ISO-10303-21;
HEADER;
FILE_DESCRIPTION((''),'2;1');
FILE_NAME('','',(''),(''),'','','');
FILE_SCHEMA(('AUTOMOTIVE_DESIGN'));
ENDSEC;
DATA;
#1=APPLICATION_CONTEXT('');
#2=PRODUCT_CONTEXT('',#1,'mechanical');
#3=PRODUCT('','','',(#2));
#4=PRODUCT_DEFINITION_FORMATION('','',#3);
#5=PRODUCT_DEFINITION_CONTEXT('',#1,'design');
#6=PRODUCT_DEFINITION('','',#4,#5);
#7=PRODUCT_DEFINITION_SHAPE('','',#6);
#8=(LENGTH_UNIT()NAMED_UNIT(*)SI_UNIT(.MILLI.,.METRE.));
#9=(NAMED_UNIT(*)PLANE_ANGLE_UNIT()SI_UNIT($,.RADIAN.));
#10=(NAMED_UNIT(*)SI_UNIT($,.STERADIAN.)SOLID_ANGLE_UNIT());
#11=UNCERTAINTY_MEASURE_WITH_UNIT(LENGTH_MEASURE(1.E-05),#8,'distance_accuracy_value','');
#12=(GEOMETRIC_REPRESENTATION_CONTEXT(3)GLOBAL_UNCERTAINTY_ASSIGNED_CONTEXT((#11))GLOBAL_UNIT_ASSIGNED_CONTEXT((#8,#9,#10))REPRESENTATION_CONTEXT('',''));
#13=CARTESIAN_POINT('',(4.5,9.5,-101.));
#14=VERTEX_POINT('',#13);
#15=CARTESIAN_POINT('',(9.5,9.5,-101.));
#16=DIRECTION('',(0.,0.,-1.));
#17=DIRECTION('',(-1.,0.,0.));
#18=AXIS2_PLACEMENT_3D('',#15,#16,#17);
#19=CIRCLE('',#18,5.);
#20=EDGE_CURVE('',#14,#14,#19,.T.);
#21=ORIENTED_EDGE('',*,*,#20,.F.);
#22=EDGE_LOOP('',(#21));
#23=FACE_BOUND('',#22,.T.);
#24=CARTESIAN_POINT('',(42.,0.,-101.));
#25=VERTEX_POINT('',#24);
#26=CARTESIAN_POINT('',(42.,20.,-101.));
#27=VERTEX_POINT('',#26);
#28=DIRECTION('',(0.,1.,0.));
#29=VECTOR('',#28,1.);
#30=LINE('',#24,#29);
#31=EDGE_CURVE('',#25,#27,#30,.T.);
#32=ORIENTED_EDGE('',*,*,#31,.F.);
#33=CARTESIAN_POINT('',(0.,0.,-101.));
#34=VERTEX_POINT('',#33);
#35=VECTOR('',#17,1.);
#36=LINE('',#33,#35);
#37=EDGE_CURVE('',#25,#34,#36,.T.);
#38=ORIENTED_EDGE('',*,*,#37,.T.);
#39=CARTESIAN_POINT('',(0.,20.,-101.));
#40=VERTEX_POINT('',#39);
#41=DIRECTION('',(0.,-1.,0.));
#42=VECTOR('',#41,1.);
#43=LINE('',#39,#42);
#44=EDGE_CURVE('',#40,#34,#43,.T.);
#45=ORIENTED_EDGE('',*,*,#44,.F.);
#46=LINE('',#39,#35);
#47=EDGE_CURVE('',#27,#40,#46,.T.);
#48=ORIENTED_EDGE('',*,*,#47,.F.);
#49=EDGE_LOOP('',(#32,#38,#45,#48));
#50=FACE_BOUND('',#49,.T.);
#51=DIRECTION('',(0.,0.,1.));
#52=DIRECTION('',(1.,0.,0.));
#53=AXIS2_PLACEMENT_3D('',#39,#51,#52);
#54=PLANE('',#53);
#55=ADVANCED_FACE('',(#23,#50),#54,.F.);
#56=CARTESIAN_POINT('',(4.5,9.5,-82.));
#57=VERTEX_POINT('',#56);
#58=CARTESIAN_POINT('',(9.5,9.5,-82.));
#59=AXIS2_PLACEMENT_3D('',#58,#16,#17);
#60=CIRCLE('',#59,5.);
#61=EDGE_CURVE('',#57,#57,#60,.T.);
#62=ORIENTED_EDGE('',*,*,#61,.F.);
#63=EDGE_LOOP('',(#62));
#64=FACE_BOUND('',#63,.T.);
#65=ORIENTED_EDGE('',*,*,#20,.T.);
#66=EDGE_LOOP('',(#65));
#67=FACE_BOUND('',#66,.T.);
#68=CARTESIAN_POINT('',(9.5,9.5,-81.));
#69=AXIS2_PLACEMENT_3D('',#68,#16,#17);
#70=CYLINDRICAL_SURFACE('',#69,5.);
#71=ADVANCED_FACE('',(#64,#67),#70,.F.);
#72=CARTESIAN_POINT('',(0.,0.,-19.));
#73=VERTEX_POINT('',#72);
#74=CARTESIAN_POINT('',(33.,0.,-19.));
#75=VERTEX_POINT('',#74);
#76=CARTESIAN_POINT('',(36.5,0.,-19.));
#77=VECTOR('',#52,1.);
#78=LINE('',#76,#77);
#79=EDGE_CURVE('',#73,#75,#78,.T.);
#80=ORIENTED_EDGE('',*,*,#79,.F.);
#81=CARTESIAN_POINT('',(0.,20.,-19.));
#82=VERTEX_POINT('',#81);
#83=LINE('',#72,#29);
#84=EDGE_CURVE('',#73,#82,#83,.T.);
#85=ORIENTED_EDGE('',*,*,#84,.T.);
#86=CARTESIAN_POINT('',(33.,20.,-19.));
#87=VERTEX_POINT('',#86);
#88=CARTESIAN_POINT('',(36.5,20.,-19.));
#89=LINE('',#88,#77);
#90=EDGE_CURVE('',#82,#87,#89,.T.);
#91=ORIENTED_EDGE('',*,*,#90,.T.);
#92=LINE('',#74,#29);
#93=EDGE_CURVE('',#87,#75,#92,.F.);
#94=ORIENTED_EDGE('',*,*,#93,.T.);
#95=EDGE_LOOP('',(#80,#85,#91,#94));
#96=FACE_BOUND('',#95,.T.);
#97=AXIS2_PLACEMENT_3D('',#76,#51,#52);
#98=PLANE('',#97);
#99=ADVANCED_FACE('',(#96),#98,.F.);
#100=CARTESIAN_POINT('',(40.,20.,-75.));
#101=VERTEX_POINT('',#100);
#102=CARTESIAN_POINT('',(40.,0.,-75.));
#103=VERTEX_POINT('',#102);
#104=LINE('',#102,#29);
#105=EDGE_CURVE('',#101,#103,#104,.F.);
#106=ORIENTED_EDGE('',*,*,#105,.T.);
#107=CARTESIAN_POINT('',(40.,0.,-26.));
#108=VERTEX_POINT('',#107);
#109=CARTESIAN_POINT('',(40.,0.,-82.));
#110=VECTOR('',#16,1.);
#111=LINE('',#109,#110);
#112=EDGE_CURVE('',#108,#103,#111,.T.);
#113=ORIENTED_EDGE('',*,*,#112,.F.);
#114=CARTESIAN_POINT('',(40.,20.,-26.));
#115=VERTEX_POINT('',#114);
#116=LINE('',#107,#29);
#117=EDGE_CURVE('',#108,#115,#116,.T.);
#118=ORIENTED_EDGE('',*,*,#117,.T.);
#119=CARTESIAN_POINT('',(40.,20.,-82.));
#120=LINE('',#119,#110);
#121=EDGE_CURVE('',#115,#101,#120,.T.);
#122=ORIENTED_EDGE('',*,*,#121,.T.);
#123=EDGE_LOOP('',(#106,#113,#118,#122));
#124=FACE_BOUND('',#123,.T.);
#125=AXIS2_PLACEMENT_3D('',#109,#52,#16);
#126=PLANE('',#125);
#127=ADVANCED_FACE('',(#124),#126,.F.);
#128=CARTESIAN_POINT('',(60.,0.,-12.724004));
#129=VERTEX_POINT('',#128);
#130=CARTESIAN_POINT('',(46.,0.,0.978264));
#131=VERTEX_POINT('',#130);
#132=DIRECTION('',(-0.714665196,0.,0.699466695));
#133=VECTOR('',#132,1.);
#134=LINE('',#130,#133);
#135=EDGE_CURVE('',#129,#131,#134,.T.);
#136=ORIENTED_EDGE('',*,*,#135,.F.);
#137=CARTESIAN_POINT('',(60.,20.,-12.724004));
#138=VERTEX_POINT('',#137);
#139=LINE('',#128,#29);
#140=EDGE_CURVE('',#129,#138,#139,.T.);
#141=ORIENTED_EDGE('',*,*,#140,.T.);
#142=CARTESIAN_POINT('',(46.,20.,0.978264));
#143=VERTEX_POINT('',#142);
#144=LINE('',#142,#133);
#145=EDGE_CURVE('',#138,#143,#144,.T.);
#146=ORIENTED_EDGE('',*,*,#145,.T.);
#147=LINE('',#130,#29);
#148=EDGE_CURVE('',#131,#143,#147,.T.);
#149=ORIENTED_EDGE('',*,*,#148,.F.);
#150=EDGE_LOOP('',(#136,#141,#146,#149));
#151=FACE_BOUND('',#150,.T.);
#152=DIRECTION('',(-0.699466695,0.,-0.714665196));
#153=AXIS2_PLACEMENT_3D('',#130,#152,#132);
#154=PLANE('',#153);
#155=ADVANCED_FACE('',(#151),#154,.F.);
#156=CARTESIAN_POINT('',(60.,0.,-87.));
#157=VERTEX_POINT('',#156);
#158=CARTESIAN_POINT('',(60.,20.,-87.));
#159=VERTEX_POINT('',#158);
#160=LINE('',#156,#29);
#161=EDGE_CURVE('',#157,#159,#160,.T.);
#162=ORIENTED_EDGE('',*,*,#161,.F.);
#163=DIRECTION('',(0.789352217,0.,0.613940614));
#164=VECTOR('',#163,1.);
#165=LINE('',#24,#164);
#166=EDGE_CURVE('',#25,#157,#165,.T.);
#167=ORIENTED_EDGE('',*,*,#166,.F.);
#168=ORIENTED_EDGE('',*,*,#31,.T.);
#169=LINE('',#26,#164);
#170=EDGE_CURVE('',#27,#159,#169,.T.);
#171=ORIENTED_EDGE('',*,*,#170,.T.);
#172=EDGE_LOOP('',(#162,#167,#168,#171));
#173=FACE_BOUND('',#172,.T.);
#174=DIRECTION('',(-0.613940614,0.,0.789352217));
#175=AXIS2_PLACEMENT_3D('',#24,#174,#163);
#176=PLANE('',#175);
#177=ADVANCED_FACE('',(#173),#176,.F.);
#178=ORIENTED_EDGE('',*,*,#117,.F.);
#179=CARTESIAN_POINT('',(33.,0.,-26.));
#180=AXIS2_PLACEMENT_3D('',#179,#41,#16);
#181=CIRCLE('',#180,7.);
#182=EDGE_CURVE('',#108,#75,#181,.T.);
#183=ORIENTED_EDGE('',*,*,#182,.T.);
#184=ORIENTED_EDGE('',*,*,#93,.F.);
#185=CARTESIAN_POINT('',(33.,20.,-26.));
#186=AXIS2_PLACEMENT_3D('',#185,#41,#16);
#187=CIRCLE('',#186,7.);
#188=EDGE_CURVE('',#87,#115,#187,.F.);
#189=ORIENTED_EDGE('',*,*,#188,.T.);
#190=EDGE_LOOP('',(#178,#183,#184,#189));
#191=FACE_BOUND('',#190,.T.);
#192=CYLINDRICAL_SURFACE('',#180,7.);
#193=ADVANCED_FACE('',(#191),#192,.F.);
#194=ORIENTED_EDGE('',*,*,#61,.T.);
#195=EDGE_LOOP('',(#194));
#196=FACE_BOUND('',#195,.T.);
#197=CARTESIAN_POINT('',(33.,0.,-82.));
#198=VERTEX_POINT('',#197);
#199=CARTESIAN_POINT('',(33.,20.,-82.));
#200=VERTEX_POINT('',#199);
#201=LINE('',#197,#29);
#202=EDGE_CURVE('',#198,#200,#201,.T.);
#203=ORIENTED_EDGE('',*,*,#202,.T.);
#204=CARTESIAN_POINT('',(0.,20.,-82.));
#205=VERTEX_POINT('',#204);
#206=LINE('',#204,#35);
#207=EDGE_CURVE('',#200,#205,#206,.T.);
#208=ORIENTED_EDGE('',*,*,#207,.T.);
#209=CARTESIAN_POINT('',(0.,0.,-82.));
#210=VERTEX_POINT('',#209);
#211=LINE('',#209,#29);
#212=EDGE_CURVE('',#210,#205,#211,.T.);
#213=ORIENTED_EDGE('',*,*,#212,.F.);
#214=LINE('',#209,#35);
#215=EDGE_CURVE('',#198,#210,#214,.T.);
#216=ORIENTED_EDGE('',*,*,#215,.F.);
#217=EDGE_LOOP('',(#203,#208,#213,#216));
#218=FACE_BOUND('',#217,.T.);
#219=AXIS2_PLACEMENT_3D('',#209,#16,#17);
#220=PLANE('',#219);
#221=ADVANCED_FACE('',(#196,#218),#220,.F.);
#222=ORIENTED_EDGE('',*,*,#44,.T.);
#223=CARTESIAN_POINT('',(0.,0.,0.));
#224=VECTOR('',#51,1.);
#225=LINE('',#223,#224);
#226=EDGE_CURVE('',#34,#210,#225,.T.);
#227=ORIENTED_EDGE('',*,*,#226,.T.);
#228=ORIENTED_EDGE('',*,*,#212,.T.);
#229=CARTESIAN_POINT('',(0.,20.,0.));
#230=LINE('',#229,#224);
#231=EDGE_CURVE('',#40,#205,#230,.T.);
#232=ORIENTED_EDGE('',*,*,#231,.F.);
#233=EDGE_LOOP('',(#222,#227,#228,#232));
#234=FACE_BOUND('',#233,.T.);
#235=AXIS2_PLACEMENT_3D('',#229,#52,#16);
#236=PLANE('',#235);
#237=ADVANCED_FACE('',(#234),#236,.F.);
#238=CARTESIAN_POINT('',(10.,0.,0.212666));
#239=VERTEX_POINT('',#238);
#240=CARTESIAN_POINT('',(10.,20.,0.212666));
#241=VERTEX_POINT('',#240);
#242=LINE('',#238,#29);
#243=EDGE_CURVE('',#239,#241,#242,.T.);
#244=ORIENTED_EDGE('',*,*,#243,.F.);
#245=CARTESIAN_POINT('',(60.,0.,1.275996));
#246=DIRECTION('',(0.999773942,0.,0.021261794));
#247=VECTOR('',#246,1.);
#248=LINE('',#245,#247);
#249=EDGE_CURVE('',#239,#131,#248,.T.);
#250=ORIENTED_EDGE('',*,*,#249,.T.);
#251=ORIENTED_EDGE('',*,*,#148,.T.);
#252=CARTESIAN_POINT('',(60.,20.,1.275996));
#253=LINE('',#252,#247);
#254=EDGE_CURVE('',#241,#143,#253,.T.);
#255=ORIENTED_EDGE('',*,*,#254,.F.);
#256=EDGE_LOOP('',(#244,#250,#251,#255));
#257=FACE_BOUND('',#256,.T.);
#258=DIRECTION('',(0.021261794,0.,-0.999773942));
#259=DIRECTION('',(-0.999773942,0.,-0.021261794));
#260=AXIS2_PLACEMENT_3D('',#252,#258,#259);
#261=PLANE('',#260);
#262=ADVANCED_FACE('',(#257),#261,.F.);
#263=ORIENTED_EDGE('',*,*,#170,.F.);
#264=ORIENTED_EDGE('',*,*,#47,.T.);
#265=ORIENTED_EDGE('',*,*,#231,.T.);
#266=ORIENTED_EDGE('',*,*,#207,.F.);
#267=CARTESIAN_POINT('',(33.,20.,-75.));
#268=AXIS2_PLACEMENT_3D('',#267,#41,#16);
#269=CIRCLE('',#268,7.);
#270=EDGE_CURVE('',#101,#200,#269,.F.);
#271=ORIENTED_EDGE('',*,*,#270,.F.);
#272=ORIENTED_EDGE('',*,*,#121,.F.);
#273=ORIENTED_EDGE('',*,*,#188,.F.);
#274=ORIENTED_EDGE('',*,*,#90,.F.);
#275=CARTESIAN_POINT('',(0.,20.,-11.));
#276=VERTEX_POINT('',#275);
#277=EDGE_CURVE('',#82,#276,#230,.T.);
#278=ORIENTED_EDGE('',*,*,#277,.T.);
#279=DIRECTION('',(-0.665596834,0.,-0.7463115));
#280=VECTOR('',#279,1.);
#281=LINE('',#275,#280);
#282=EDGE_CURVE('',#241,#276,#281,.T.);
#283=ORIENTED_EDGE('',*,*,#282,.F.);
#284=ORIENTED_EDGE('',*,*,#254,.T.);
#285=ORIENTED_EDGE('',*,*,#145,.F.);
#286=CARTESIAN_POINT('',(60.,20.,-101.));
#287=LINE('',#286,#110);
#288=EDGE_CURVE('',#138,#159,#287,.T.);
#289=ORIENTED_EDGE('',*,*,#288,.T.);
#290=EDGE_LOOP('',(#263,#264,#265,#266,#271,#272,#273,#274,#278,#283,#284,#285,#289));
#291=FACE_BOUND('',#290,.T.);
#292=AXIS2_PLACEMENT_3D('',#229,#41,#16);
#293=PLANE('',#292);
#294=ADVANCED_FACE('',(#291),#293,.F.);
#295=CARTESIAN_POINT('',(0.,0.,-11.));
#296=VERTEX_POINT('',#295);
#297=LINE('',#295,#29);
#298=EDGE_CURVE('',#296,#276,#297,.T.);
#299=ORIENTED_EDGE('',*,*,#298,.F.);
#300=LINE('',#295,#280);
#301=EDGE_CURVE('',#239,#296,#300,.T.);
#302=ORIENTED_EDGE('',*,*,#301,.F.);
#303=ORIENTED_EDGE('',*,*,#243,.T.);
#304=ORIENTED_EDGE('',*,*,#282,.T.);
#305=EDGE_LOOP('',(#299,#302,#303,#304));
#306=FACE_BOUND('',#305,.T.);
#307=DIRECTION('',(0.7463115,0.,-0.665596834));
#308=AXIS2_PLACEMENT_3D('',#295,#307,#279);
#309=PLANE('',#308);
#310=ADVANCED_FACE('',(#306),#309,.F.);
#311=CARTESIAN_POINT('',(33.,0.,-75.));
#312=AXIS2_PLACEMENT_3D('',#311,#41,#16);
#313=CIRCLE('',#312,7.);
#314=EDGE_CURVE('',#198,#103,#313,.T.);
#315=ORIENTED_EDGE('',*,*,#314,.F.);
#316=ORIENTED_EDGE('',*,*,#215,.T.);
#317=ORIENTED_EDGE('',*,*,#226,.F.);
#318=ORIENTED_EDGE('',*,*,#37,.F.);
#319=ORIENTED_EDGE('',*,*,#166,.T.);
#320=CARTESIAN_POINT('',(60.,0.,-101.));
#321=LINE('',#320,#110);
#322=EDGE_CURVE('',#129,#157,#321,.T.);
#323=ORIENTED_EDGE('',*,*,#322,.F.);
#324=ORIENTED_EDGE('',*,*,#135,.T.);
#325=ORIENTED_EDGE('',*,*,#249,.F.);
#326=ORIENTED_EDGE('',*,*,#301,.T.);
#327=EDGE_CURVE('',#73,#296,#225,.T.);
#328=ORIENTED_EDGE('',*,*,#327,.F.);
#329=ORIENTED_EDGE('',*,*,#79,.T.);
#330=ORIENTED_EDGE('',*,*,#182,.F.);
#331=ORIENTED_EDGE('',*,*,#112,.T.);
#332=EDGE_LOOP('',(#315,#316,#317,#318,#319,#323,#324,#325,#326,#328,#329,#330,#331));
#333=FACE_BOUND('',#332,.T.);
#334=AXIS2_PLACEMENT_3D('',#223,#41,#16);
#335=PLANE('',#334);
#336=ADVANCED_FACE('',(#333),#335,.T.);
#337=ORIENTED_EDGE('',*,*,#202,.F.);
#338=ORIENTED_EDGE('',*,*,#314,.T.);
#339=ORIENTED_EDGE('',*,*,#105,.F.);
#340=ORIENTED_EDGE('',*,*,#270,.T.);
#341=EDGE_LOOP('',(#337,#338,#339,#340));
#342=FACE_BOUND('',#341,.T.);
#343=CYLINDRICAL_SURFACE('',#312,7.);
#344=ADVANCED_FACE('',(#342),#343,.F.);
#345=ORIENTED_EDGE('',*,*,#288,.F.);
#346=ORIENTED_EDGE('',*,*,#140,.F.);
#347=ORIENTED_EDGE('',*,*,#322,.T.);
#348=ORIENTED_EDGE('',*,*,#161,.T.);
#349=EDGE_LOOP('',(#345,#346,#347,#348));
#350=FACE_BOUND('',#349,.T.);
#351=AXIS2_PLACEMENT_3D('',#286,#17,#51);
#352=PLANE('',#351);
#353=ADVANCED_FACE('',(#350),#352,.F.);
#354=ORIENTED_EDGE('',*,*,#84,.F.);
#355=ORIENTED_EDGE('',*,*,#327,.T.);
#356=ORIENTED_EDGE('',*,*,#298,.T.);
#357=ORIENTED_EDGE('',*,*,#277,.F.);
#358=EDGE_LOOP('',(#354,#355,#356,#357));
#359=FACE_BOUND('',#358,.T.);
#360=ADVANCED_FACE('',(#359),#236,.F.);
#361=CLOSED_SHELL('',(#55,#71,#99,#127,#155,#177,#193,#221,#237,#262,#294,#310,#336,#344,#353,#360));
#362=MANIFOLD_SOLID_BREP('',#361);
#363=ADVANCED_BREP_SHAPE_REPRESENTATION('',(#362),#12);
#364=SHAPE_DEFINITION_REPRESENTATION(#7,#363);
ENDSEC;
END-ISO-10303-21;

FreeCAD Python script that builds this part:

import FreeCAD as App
import Part
import Sketcher


def edges_at(feature, points):
    """Names of the edges that pass closest to the given points."""
    edges = feature.Shape.Edges
    near = lambda p: min(range(len(edges)), key=lambda i: edges[i].distToShape(Part.Vertex(*p))[0])
    return sorted({f"Edge{near(p) + 1}" for p in points})

doc = App.newDocument("Part")
body = doc.addObject("PartDesign::Body", "Body")

sketch1 = doc.addObject("Sketcher::SketchObject", "Sketch")
body.addObject(sketch1)
sketch1.AttachmentSupport = (doc.XZ_Plane, [""])
sketch1.MapMode = "FlatFace"
sketch1.addGeometry(Part.LineSegment(App.Vector(0, -101, 0), App.Vector(0, 0, 0)), False)
sketch1.addGeometry(Part.LineSegment(App.Vector(0, 0, 0), App.Vector(60, 1, 0)), False)
sketch1.addGeometry(Part.LineSegment(App.Vector(60, 1, 0), App.Vector(60, -101, 0)), False)
sketch1.addGeometry(Part.LineSegment(App.Vector(60, -101, 0), App.Vector(0, -101, 0)), False)
sketch1.addConstraint(Sketcher.Constraint("Coincident", 0, 2, 1, 1))
sketch1.addConstraint(Sketcher.Constraint("Coincident", 1, 2, 2, 1))
sketch1.addConstraint(Sketcher.Constraint("Coincident", 2, 2, 3, 1))
sketch1.addConstraint(Sketcher.Constraint("Coincident", 3, 2, 0, 1))
sketch1.addConstraint(Sketcher.Constraint("Vertical", 0))
sketch1.addConstraint(Sketcher.Constraint("Vertical", 2))
sketch1.addConstraint(Sketcher.Constraint("Horizontal", 3))
sketch1.addConstraint(Sketcher.Constraint("Coincident", 0, 2, -1, 1))
sketch1.addConstraint(Sketcher.Constraint("DistanceX", 3, 2, 3, 1, 60.0))
sketch1.addConstraint(Sketcher.Constraint("DistanceY", 0, 1, 0, 2, 101.0))
sketch1.addConstraint(Sketcher.Constraint("DistanceY", 2, 2, 2, 1, 102.275996))
pad1 = doc.addObject("PartDesign::Pad", "Pad")
body.addObject(pad1)
pad1.Profile = sketch1
pad1.Length = 20
pad1.Reversed = True

sketch2 = doc.addObject("Sketcher::SketchObject", "Sketch001")
body.addObject(sketch2)
sketch2.AttachmentSupport = (doc.XZ_Plane, [""])
sketch2.MapMode = "FlatFace"
sketch2.AttachmentOffset = App.Placement(App.Vector(0, 0, -20), App.Rotation())
sketch2.addGeometry(Part.LineSegment(App.Vector(60, -101, 0), App.Vector(42, -101, 0)), False)
sketch2.addGeometry(Part.LineSegment(App.Vector(42, -101, 0), App.Vector(60, -87, 0)), False)
sketch2.addGeometry(Part.LineSegment(App.Vector(60, -87, 0), App.Vector(60, -101, 0)), False)
sketch2.addConstraint(Sketcher.Constraint("Coincident", 0, 2, 1, 1))
sketch2.addConstraint(Sketcher.Constraint("Coincident", 1, 2, 2, 1))
sketch2.addConstraint(Sketcher.Constraint("Coincident", 2, 2, 0, 1))
sketch2.addConstraint(Sketcher.Constraint("Horizontal", 0))
sketch2.addConstraint(Sketcher.Constraint("Vertical", 2))
sketch2.addConstraint(Sketcher.Constraint("DistanceX", 0, 2, 0, 1, 18.0))
sketch2.addConstraint(Sketcher.Constraint("DistanceY", 2, 2, 2, 1, 14.0))
sketch2.addConstraint(Sketcher.Constraint("DistanceX", -1, 1, 0, 2, 42.0))
sketch2.addConstraint(Sketcher.Constraint("DistanceY", 0, 2, -1, 1, 101.0))
pocket1 = doc.addObject("PartDesign::Pocket", "Pocket")
body.addObject(pocket1)
pocket1.Profile = sketch2
pocket1.Length = 20
pocket1.Reversed = True

sketch3 = doc.addObject("Sketcher::SketchObject", "Sketch002")
body.addObject(sketch3)
sketch3.AttachmentSupport = (doc.XZ_Plane, [""])
sketch3.MapMode = "FlatFace"
sketch3.AttachmentOffset = App.Placement(App.Vector(0, 0, -20), App.Rotation())
sketch3.addGeometry(Part.LineSegment(App.Vector(46, 0.978264, 0), App.Vector(60, 1.275996, 0)), False)
sketch3.addGeometry(Part.LineSegment(App.Vector(60, 1.275996, 0), App.Vector(60, -12.724004, 0)), False)
sketch3.addGeometry(Part.LineSegment(App.Vector(60, -12.724004, 0), App.Vector(46, 0.978264, 0)), False)
sketch3.addGeometry(Part.LineSegment(App.Vector(0, 0, 0), App.Vector(10, 0.212666, 0)), False)
sketch3.addGeometry(Part.LineSegment(App.Vector(10, 0.212666, 0), App.Vector(0, -11, 0)), False)
sketch3.addGeometry(Part.LineSegment(App.Vector(0, -11, 0), App.Vector(0, 0, 0)), False)
sketch3.addConstraint(Sketcher.Constraint("Coincident", 0, 2, 1, 1))
sketch3.addConstraint(Sketcher.Constraint("Coincident", 1, 2, 2, 1))
sketch3.addConstraint(Sketcher.Constraint("Coincident", 2, 2, 0, 1))
sketch3.addConstraint(Sketcher.Constraint("Coincident", 3, 2, 4, 1))
sketch3.addConstraint(Sketcher.Constraint("Coincident", 4, 2, 5, 1))
sketch3.addConstraint(Sketcher.Constraint("Coincident", 5, 2, 3, 1))
sketch3.addConstraint(Sketcher.Constraint("Vertical", 1))
sketch3.addConstraint(Sketcher.Constraint("Vertical", 5))
sketch3.addConstraint(Sketcher.Constraint("Coincident", 5, 2, -1, 1))
sketch3.addConstraint(Sketcher.Constraint("Parallel", 0, 3))
sketch3.addConstraint(Sketcher.Constraint("DistanceY", 1, 2, 1, 1, 14.0))
sketch3.addConstraint(Sketcher.Constraint("DistanceY", 5, 1, 5, 2, 11.0))
sketch3.addConstraint(Sketcher.Constraint("DistanceX", -1, 1, 0, 2, 60.0))
sketch3.addConstraint(Sketcher.Constraint("DistanceX", -1, 1, 2, 2, 46.0))
sketch3.addConstraint(Sketcher.Constraint("DistanceX", -1, 1, 3, 2, 10.0))
sketch3.addConstraint(Sketcher.Constraint("Distance", 3, 10.002261))
sketch3.addConstraint(Sketcher.Constraint("DistanceY", 3, 2, 0, 2, 1.06333))
pocket2 = doc.addObject("PartDesign::Pocket", "Pocket001")
body.addObject(pocket2)
pocket2.Profile = sketch3
pocket2.Length = 20
pocket2.Reversed = True

sketch4 = doc.addObject("Sketcher::SketchObject", "Sketch003")
body.addObject(sketch4)
sketch4.AttachmentSupport = (doc.XZ_Plane, [""])
sketch4.MapMode = "FlatFace"
sketch4.AttachmentOffset = App.Placement(App.Vector(0, 0, -20), App.Rotation())
sketch4.addGeometry(Part.LineSegment(App.Vector(0, -82, 0), App.Vector(0, -19, 0)), False)
sketch4.addGeometry(Part.LineSegment(App.Vector(0, -19, 0), App.Vector(36, -19, 0)), False)
sketch4.addGeometry(Part.LineSegment(App.Vector(36, -19, 0), App.Vector(36, -82, 0)), False)
sketch4.addGeometry(Part.LineSegment(App.Vector(36, -82, 0), App.Vector(0, -82, 0)), False)
sketch4.addConstraint(Sketcher.Constraint("Coincident", 0, 2, 1, 1))
sketch4.addConstraint(Sketcher.Constraint("Coincident", 1, 2, 2, 1))
sketch4.addConstraint(Sketcher.Constraint("Coincident", 2, 2, 3, 1))
sketch4.addConstraint(Sketcher.Constraint("Coincident", 3, 2, 0, 1))
sketch4.addConstraint(Sketcher.Constraint("Vertical", 0))
sketch4.addConstraint(Sketcher.Constraint("Horizontal", 1))
sketch4.addConstraint(Sketcher.Constraint("Vertical", 2))
sketch4.addConstraint(Sketcher.Constraint("Horizontal", 3))
sketch4.addConstraint(Sketcher.Constraint("PointOnObject", 0, 2, -2))
sketch4.addConstraint(Sketcher.Constraint("DistanceY", 0, 1, 0, 2, 63.0))
sketch4.addConstraint(Sketcher.Constraint("DistanceX", 1, 1, 1, 2, 36.5))
sketch4.addConstraint(Sketcher.Constraint("DistanceY", 0, 2, -1, 1, 19.0))
pocket3 = doc.addObject("PartDesign::Pocket", "Pocket002")
body.addObject(pocket3)
pocket3.Profile = sketch4
pocket3.Length = 20
pocket3.Reversed = True
doc.recompute()

fillet = doc.addObject("PartDesign::Fillet", "Fillet")
body.addObject(fillet)
fillet.Base = (pocket3, edges_at(pocket3, [(36.5, 10, -82)]))
fillet.Radius = 7
doc.recompute()

fillet2 = doc.addObject("PartDesign::Fillet", "Fillet001")
body.addObject(fillet2)
fillet2.Base = (fillet, edges_at(fillet, [(36.5, 10, -19)]))
fillet2.Radius = 7

sketch5 = doc.addObject("Sketcher::SketchObject", "Sketch004")
body.addObject(sketch5)
sketch5.AttachmentSupport = (doc.XY_Plane, [""])
sketch5.MapMode = "FlatFace"
sketch5.AttachmentOffset = App.Placement(App.Vector(0, 0, -101), App.Rotation())
sketch5.addGeometry(Part.Circle(App.Vector(10, 10, 0), App.Vector(0, 0, 1), 5), False)
sketch5.addConstraint(Sketcher.Constraint("Diameter", 0, 10.0))
sketch5.addConstraint(Sketcher.Constraint("DistanceX", -1, 1, 0, 3, 9.5))
sketch5.addConstraint(Sketcher.Constraint("DistanceY", -1, 1, 0, 3, 9.5))
pocket4 = doc.addObject("PartDesign::Pocket", "Pocket003")
body.addObject(pocket4)
pocket4.Profile = sketch5
pocket4.Length = 20
pocket4.Reversed = True

sketch6 = doc.addObject("Sketcher::SketchObject", "Sketch005")
body.addObject(sketch6)
sketch6.AttachmentSupport = (doc.XZ_Plane, [""])
sketch6.MapMode = "FlatFace"
sketch6.AttachmentOffset = App.Placement(App.Vector(0, 0, -20), App.Rotation())
sketch6.addGeometry(Part.LineSegment(App.Vector(40, -82, 0), App.Vector(0, -82, 0)), False)
sketch6.addGeometry(Part.LineSegment(App.Vector(0, -82, 0), App.Vector(0, -19, 0)), False)
sketch6.addGeometry(Part.LineSegment(App.Vector(0, -19, 0), App.Vector(40, -19, 0)), False)
sketch6.addGeometry(Part.LineSegment(App.Vector(40, -19, 0), App.Vector(40, -82, 0)), False)
sketch6.addConstraint(Sketcher.Constraint("Coincident", 0, 2, 1, 1))
sketch6.addConstraint(Sketcher.Constraint("Coincident", 1, 2, 2, 1))
sketch6.addConstraint(Sketcher.Constraint("Coincident", 2, 2, 3, 1))
sketch6.addConstraint(Sketcher.Constraint("Coincident", 3, 2, 0, 1))
sketch6.addConstraint(Sketcher.Constraint("Horizontal", 0))
sketch6.addConstraint(Sketcher.Constraint("Vertical", 1))
sketch6.addConstraint(Sketcher.Constraint("Horizontal", 2))
sketch6.addConstraint(Sketcher.Constraint("Vertical", 3))
sketch6.addConstraint(Sketcher.Constraint("PointOnObject", 0, 2, -2))
sketch6.addConstraint(Sketcher.Constraint("DistanceX", 0, 2, 0, 1, 40.0))
sketch6.addConstraint(Sketcher.Constraint("DistanceY", 1, 1, 1, 2, 63.0))
sketch6.addConstraint(Sketcher.Constraint("DistanceY", 0, 2, -1, 1, 82.0))
pocket5 = doc.addObject("PartDesign::Pocket", "Pocket004")
body.addObject(pocket5)
pocket5.Profile = sketch6
pocket5.Length = 20
pocket5.Reversed = True
doc.recompute()

fillet3 = doc.addObject("PartDesign::Fillet", "Fillet002")
body.addObject(fillet3)
fillet3.Base = (pocket5, edges_at(pocket5, [(40, 10, -82)]))
fillet3.Radius = 7
doc.recompute()

fillet4 = doc.addObject("PartDesign::Fillet", "Fillet003")
body.addObject(fillet4)
fillet4.Base = (fillet3, edges_at(fillet3, [(40, 10, -19)]))
fillet4.Radius = 7

doc.recompute()
